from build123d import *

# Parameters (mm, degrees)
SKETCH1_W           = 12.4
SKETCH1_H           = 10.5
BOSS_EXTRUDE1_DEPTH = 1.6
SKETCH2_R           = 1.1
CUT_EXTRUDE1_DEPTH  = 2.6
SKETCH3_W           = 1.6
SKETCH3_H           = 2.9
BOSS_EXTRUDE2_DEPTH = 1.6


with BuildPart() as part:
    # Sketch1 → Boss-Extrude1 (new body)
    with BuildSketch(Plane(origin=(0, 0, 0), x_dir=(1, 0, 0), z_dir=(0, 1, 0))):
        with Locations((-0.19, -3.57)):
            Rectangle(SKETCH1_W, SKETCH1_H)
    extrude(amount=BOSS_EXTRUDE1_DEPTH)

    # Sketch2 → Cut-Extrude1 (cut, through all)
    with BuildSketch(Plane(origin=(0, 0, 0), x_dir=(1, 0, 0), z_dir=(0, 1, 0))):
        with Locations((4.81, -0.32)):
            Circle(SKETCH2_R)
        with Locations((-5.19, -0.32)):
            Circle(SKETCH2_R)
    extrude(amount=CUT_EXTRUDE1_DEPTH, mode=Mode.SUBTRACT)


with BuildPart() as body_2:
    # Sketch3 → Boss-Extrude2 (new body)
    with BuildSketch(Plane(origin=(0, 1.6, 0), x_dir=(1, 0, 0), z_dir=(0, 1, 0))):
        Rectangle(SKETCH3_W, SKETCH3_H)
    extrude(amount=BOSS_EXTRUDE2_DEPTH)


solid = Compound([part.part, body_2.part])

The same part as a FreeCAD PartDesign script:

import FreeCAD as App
import Part
import Sketcher

doc = App.newDocument("Part")
body = doc.addObject("PartDesign::Body", "Body")

sketch1 = body.newObject("Sketcher::SketchObject", "Sketch")
sketch1.AttachmentSupport = (doc.getObject("XZ_Plane"), [""])
sketch1.MapMode = "FlatFace"
sketch1.addGeometry(Part.LineSegment(App.Vector(-6.39, -1.68, 0), App.Vector(-6.39, 8.82, 0)), False)
sketch1.addGeometry(Part.LineSegment(App.Vector(-6.39, 8.82, 0), App.Vector(6.01, 8.82, 0)), False)
sketch1.addGeometry(Part.LineSegment(App.Vector(6.01, 8.82, 0), App.Vector(6.01, -1.68, 0)), False)
sketch1.addGeometry(Part.LineSegment(App.Vector(6.01, -1.68, 0), App.Vector(-6.39, -1.68, 0)), False)
sketch1.addConstraint(Sketcher.Constraint("Coincident", 0, 2, 1, 1))
sketch1.addConstraint(Sketcher.Constraint("Coincident", 1, 2, 2, 1))
sketch1.addConstraint(Sketcher.Constraint("Coincident", 2, 2, 3, 1))
sketch1.addConstraint(Sketcher.Constraint("Coincident", 3, 2, 0, 1))
sketch1.addConstraint(Sketcher.Constraint("Vertical", 0))
sketch1.addConstraint(Sketcher.Constraint("Horizontal", 1))
sketch1.addConstraint(Sketcher.Constraint("Vertical", 2))
sketch1.addConstraint(Sketcher.Constraint("Horizontal", 3))
sketch1.addConstraint(Sketcher.Constraint("DistanceX", 1, 1, 1, 2, 12.4))
sketch1.addConstraint(Sketcher.Constraint("DistanceY", 0, 1, 0, 2, 10.5))
sketch1.addConstraint(Sketcher.Constraint("DistanceX", 0, 2, -1, 1, 6.39))
sketch1.addConstraint(Sketcher.Constraint("DistanceY", -1, 1, 0, 2, 8.82))
pad1 = body.newObject("PartDesign::Pad", "Pad")
pad1.Profile = sketch1
pad1.Length = 1.6
pad1.Reversed = True

sketch2 = body.newObject("Sketcher::SketchObject", "Sketch001")
sketch2.AttachmentSupport = (doc.getObject("XZ_Plane"), [""])
sketch2.MapMode = "FlatFace"
sketch2.addGeometry(Part.Circle(App.Vector(4.81, 0.32, 0), App.Vector(0, 0, 1), 1.1), False)
sketch2.addGeometry(Part.Circle(App.Vector(-5.19, 0.32, 0), App.Vector(0, 0, 1), 1.1), False)
sketch2.addConstraint(Sketcher.Constraint("Equal", 0, 1))
sketch2.addConstraint(Sketcher.Constraint("Horizontal", 0, 3, 1, 3))
sketch2.addConstraint(Sketcher.Constraint("Diameter", 0, 2.2))
sketch2.addConstraint(Sketcher.Constraint("DistanceX", 1, 3, 0, 3, 10.0))
sketch2.addConstraint(Sketcher.Constraint("DistanceX", -1, 1, 0, 3, 4.81))
sketch2.addConstraint(Sketcher.Constraint("DistanceY", -1, 1, 0, 3, 0.32))
pocket1 = body.newObject("PartDesign::Pocket", "Pocket")
pocket1.Profile = sketch2
pocket1.Type = "ThroughAll"
body2 = doc.addObject("PartDesign::Body", "Body001")

sketch3 = body2.newObject("Sketcher::SketchObject", "Sketch002")
sketch3.AttachmentSupport = (doc.getObject("XZ_Plane001"), [""])
sketch3.MapMode = "FlatFace"
sketch3.AttachmentOffset = App.Placement(App.Vector(0, 0, -1.6), App.Rotation())
sketch3.addGeometry(Part.LineSegment(App.Vector(-0.8, -1.45, 0), App.Vector(-0.8, 1.45, 0)), False)
sketch3.addGeometry(Part.LineSegment(App.Vector(-0.8, 1.45, 0), App.Vector(0.8, 1.45, 0)), False)
sketch3.addGeometry(Part.LineSegment(App.Vector(0.8, 1.45, 0), App.Vector(0.8, -1.45, 0)), False)
sketch3.addGeometry(Part.LineSegment(App.Vector(0.8, -1.45, 0), App.Vector(-0.8, -1.45, 0)), False)
sketch3.addConstraint(Sketcher.Constraint("Coincident", 0, 2, 1, 1))
sketch3.addConstraint(Sketcher.Constraint("Coincident", 1, 2, 2, 1))
sketch3.addConstraint(Sketcher.Constraint("Coincident", 2, 2, 3, 1))
sketch3.addConstraint(Sketcher.Constraint("Coincident", 3, 2, 0, 1))
sketch3.addConstraint(Sketcher.Constraint("Vertical", 0))
sketch3.addConstraint(Sketcher.Constraint("Horizontal", 1))
sketch3.addConstraint(Sketcher.Constraint("Vertical", 2))
sketch3.addConstraint(Sketcher.Constraint("Horizontal", 3))
sketch3.addConstraint(Sketcher.Constraint("Symmetric", 0, 2, 2, 2, -1, 1))
sketch3.addConstraint(Sketcher.Constraint("DistanceX", 1, 1, 1, 2, 1.6))
sketch3.addConstraint(Sketcher.Constraint("DistanceY", 0, 1, 0, 2, 2.9))
pad2 = body2.newObject("PartDesign::Pad", "Pad001")
pad2.Profile = sketch3
pad2.Length = 1.6
pad2.Reversed = True

doc.recompute()
